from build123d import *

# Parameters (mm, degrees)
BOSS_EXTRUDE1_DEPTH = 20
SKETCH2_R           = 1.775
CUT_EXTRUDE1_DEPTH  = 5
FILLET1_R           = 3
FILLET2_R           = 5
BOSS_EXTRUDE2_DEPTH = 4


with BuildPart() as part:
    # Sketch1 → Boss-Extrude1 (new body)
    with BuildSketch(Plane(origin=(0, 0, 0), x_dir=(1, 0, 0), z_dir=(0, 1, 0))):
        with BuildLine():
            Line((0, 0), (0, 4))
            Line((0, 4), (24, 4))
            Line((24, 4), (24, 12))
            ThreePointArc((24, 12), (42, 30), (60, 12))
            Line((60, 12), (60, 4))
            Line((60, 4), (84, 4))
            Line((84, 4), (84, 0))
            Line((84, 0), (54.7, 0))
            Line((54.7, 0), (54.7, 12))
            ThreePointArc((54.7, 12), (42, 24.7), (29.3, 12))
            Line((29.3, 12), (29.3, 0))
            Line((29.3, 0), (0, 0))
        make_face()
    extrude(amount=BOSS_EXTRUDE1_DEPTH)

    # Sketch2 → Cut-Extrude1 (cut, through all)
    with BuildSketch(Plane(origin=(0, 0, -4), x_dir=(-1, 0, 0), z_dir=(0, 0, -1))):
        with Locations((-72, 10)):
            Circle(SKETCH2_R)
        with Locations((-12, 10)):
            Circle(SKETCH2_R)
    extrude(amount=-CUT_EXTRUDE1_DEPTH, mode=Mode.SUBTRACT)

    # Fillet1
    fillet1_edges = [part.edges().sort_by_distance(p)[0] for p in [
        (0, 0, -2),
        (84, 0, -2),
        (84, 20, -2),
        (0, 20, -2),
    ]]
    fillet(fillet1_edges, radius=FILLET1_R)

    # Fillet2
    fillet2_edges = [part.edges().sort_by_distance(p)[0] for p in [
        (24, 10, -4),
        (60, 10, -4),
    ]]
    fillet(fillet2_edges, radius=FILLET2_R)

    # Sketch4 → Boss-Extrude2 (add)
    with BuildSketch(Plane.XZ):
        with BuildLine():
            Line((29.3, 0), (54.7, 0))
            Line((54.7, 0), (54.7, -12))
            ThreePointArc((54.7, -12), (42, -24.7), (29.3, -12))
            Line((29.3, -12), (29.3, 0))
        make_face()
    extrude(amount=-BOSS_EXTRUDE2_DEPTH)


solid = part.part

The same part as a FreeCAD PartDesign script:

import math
import FreeCAD as App
import Part
import Sketcher
from FreeCAD import Vector
Q = App.Units.Quantity


def edges_at(feature, points):
    """Names of the edges that pass closest to the given points."""
    edges = feature.Shape.Edges
    near = lambda p: min(range(len(edges)), key=lambda i: edges[i].distToShape(Part.Vertex(*p))[0])
    return sorted({f"Edge{near(p) + 1}" for p in points})

doc = App.newDocument("Part")
body = doc.addObject("PartDesign::Body", "Body")

# Sketch on XZ plane
sketch1 = body.newObject("Sketcher::SketchObject", "Sketch")
sketch1.AttachmentSupport = (doc.getObject("XZ_Plane"), [""])
sketch1.MapMode = "FlatFace"
sketch1.addGeometry([
    Part.LineSegment(Vector(0, -4, 0), Vector(0, 0, 0)),  # 0
    Part.LineSegment(Vector(0, 0, 0), Vector(29.3, 0, 0)),  # 1
    Part.LineSegment(Vector(29.3, 0, 0), Vector(29.3, -12, 0)),  # 2
    Part.ArcOfCircle(Part.Circle(Vector(42, -12, 0), Vector(0, 0, 1), 12.7), math.radians(180), math.radians(360)),  # 3
    Part.LineSegment(Vector(54.7, -12, 0), Vector(54.7, 0, 0)),  # 4
    Part.LineSegment(Vector(54.7, 0, 0), Vector(84, 0, 0)),  # 5
    Part.LineSegment(Vector(84, 0, 0), Vector(84, -4, 0)),  # 6
    Part.LineSegment(Vector(84, -4, 0), Vector(60, -4, 0)),  # 7
    Part.LineSegment(Vector(60, -4, 0), Vector(60, -12, 0)),  # 8
    Part.ArcOfCircle(Part.Circle(Vector(42, -12, 0), Vector(0, 0, 1), 18), math.radians(180), math.radians(360)),  # 9
    Part.LineSegment(Vector(24, -12, 0), Vector(24, -4, 0)),  # 10
    Part.LineSegment(Vector(24, -4, 0), Vector(0, -4, 0)),  # 11
], False)
sketch1.addConstraint([
    Sketcher.Constraint("Coincident", 0, 2, 1, 1),
    Sketcher.Constraint("Coincident", 1, 2, 2, 1),
    Sketcher.Constraint("Tangent", 2, 2, 3, 1),
    Sketcher.Constraint("Tangent", 3, 2, 4, 1),
    Sketcher.Constraint("Coincident", 4, 2, 5, 1),
    Sketcher.Constraint("Coincident", 5, 2, 6, 1),
    Sketcher.Constraint("Coincident", 6, 2, 7, 1),
    Sketcher.Constraint("Coincident", 7, 2, 8, 1),
    Sketcher.Constraint("Tangent", 8, 2, 9, 2),
    Sketcher.Constraint("Tangent", 9, 1, 10, 1),
    Sketcher.Constraint("Coincident", 10, 2, 11, 1),
    Sketcher.Constraint("Coincident", 11, 2, 0, 1),
    Sketcher.Constraint("Vertical", 0),
    Sketcher.Constraint("Horizontal", 1),
    Sketcher.Constraint("Vertical", 2),
    Sketcher.Constraint("Vertical", 4),
    Sketcher.Constraint("Horizontal", 5),
    Sketcher.Constraint("Vertical", 6),
    Sketcher.Constraint("Horizontal", 7),
    Sketcher.Constraint("Vertical", 8),
    Sketcher.Constraint("Vertical", 10),
    Sketcher.Constraint("Horizontal", 11),
    Sketcher.Constraint("Coincident", 0, 2, -1, 1),
    Sketcher.Constraint("Coincident", 9, 3, 3, 3),
    Sketcher.Constraint("PointOnObject", 4, 2, -1),
    Sketcher.Constraint("Horizontal", 7, 2, 10, 2),
    Sketcher.Constraint("Equal", 1, 5),
    Sketcher.Constraint("Radius", 9, Q("18 mm")),
    Sketcher.Constraint("Radius", 3, Q("12.7 mm")),
    Sketcher.Constraint("DistanceX", 7, 2, 7, 1, Q("24 mm")),
    Sketcher.Constraint("DistanceY", 0, 1, 0, 2, Q("4 mm")),
    Sketcher.Constraint("DistanceY", 2, 2, 2, 1, Q("12 mm")),
])
pad1 = body.newObject("PartDesign::Pad", "Pad")
pad1.Profile = sketch1
pad1.Length = 20
pad1.Reversed = True

# Sketch on XY plane
sketch2 = body.newObject("Sketcher::SketchObject", "Sketch001")
sketch2.AttachmentSupport = (doc.getObject("XY_Plane"), [""])
sketch2.MapMode = "FlatFace"
sketch2.AttachmentOffset = App.Placement(Vector(0, 0, -4), App.Rotation())
sketch2.addGeometry([
    Part.Circle(Vector(72, 10, 0), Vector(0, 0, 1), 1.8),
    Part.Circle(Vector(12, 10, 0), Vector(0, 0, 1), 1.8),
], False)
sketch2.addConstraint([
    Sketcher.Constraint("Equal", 0, 1),
    Sketcher.Constraint("Horizontal", 0, 3, 1, 3),
    Sketcher.Constraint("Diameter", 0, Q("3.55 mm")),
    Sketcher.Constraint("DistanceX", -1, 1, 0, 3, Q("72 mm")),
    Sketcher.Constraint("DistanceY", -1, 1, 0, 3, Q("10 mm")),
    Sketcher.Constraint("DistanceX", -1, 1, 1, 3, Q("12 mm")),
])
pocket1 = body.newObject("PartDesign::Pocket", "Pocket")
pocket1.Profile = sketch2
pocket1.Type = "ThroughAll"
pocket1.Reversed = True
doc.recompute()

fillet = body.newObject("PartDesign::Fillet", "Fillet")
fillet.Base = (pocket1, edges_at(pocket1, [
    (0, 0, -2),
    (84, 0, -2),
    (84, 20, -2),
    (0, 20, -2),
]))
fillet.Radius = 3
doc.recompute()

fillet2 = body.newObject("PartDesign::Fillet", "Fillet001")
fillet2.Base = (fillet, edges_at(fillet, [(24, 10, -4), (60, 10, -4)]))
fillet2.Radius = 5

# Sketch on XZ plane
sketch3 = body.newObject("Sketcher::SketchObject", "Sketch002")
sketch3.AttachmentSupport = (doc.getObject("XZ_Plane"), [""])
sketch3.MapMode = "FlatFace"
sketch3.addGeometry([
    Part.LineSegment(Vector(55, 0, 0), Vector(29, 0, 0)),
    Part.LineSegment(Vector(29, 0, 0), Vector(29, -12, 0)),
    Part.ArcOfCircle(Part.Circle(Vector(42, -12, 0), Vector(0, 0, 1), 13), math.radians(180), math.radians(360)),
    Part.LineSegment(Vector(55, -12, 0), Vector(55, 0, 0)),
], False)
sketch3.addConstraint([
    Sketcher.Constraint("Coincident", 0, 2, 1, 1),
    Sketcher.Constraint("Tangent", 1, 2, 2, 1),
    Sketcher.Constraint("Tangent", 2, 2, 3, 1),
    Sketcher.Constraint("Coincident", 3, 2, 0, 1),
    Sketcher.Constraint("Horizontal", 0),
    Sketcher.Constraint("Vertical", 1),
    Sketcher.Constraint("Vertical", 3),
    Sketcher.Constraint("PointOnObject", 0, 2, -1),
    Sketcher.Constraint("Radius", 2, Q("12.7 mm")),
    Sketcher.Constraint("DistanceY", 1, 2, 1, 1, Q("12 mm")),
    Sketcher.Constraint("DistanceX", -1, 1, 2, 3, Q("42 mm")),
])
pad2 = body.newObject("PartDesign::Pad", "Pad001")
pad2.Profile = sketch3
pad2.Length = 4
pad2.Reversed = True

doc.recompute()
